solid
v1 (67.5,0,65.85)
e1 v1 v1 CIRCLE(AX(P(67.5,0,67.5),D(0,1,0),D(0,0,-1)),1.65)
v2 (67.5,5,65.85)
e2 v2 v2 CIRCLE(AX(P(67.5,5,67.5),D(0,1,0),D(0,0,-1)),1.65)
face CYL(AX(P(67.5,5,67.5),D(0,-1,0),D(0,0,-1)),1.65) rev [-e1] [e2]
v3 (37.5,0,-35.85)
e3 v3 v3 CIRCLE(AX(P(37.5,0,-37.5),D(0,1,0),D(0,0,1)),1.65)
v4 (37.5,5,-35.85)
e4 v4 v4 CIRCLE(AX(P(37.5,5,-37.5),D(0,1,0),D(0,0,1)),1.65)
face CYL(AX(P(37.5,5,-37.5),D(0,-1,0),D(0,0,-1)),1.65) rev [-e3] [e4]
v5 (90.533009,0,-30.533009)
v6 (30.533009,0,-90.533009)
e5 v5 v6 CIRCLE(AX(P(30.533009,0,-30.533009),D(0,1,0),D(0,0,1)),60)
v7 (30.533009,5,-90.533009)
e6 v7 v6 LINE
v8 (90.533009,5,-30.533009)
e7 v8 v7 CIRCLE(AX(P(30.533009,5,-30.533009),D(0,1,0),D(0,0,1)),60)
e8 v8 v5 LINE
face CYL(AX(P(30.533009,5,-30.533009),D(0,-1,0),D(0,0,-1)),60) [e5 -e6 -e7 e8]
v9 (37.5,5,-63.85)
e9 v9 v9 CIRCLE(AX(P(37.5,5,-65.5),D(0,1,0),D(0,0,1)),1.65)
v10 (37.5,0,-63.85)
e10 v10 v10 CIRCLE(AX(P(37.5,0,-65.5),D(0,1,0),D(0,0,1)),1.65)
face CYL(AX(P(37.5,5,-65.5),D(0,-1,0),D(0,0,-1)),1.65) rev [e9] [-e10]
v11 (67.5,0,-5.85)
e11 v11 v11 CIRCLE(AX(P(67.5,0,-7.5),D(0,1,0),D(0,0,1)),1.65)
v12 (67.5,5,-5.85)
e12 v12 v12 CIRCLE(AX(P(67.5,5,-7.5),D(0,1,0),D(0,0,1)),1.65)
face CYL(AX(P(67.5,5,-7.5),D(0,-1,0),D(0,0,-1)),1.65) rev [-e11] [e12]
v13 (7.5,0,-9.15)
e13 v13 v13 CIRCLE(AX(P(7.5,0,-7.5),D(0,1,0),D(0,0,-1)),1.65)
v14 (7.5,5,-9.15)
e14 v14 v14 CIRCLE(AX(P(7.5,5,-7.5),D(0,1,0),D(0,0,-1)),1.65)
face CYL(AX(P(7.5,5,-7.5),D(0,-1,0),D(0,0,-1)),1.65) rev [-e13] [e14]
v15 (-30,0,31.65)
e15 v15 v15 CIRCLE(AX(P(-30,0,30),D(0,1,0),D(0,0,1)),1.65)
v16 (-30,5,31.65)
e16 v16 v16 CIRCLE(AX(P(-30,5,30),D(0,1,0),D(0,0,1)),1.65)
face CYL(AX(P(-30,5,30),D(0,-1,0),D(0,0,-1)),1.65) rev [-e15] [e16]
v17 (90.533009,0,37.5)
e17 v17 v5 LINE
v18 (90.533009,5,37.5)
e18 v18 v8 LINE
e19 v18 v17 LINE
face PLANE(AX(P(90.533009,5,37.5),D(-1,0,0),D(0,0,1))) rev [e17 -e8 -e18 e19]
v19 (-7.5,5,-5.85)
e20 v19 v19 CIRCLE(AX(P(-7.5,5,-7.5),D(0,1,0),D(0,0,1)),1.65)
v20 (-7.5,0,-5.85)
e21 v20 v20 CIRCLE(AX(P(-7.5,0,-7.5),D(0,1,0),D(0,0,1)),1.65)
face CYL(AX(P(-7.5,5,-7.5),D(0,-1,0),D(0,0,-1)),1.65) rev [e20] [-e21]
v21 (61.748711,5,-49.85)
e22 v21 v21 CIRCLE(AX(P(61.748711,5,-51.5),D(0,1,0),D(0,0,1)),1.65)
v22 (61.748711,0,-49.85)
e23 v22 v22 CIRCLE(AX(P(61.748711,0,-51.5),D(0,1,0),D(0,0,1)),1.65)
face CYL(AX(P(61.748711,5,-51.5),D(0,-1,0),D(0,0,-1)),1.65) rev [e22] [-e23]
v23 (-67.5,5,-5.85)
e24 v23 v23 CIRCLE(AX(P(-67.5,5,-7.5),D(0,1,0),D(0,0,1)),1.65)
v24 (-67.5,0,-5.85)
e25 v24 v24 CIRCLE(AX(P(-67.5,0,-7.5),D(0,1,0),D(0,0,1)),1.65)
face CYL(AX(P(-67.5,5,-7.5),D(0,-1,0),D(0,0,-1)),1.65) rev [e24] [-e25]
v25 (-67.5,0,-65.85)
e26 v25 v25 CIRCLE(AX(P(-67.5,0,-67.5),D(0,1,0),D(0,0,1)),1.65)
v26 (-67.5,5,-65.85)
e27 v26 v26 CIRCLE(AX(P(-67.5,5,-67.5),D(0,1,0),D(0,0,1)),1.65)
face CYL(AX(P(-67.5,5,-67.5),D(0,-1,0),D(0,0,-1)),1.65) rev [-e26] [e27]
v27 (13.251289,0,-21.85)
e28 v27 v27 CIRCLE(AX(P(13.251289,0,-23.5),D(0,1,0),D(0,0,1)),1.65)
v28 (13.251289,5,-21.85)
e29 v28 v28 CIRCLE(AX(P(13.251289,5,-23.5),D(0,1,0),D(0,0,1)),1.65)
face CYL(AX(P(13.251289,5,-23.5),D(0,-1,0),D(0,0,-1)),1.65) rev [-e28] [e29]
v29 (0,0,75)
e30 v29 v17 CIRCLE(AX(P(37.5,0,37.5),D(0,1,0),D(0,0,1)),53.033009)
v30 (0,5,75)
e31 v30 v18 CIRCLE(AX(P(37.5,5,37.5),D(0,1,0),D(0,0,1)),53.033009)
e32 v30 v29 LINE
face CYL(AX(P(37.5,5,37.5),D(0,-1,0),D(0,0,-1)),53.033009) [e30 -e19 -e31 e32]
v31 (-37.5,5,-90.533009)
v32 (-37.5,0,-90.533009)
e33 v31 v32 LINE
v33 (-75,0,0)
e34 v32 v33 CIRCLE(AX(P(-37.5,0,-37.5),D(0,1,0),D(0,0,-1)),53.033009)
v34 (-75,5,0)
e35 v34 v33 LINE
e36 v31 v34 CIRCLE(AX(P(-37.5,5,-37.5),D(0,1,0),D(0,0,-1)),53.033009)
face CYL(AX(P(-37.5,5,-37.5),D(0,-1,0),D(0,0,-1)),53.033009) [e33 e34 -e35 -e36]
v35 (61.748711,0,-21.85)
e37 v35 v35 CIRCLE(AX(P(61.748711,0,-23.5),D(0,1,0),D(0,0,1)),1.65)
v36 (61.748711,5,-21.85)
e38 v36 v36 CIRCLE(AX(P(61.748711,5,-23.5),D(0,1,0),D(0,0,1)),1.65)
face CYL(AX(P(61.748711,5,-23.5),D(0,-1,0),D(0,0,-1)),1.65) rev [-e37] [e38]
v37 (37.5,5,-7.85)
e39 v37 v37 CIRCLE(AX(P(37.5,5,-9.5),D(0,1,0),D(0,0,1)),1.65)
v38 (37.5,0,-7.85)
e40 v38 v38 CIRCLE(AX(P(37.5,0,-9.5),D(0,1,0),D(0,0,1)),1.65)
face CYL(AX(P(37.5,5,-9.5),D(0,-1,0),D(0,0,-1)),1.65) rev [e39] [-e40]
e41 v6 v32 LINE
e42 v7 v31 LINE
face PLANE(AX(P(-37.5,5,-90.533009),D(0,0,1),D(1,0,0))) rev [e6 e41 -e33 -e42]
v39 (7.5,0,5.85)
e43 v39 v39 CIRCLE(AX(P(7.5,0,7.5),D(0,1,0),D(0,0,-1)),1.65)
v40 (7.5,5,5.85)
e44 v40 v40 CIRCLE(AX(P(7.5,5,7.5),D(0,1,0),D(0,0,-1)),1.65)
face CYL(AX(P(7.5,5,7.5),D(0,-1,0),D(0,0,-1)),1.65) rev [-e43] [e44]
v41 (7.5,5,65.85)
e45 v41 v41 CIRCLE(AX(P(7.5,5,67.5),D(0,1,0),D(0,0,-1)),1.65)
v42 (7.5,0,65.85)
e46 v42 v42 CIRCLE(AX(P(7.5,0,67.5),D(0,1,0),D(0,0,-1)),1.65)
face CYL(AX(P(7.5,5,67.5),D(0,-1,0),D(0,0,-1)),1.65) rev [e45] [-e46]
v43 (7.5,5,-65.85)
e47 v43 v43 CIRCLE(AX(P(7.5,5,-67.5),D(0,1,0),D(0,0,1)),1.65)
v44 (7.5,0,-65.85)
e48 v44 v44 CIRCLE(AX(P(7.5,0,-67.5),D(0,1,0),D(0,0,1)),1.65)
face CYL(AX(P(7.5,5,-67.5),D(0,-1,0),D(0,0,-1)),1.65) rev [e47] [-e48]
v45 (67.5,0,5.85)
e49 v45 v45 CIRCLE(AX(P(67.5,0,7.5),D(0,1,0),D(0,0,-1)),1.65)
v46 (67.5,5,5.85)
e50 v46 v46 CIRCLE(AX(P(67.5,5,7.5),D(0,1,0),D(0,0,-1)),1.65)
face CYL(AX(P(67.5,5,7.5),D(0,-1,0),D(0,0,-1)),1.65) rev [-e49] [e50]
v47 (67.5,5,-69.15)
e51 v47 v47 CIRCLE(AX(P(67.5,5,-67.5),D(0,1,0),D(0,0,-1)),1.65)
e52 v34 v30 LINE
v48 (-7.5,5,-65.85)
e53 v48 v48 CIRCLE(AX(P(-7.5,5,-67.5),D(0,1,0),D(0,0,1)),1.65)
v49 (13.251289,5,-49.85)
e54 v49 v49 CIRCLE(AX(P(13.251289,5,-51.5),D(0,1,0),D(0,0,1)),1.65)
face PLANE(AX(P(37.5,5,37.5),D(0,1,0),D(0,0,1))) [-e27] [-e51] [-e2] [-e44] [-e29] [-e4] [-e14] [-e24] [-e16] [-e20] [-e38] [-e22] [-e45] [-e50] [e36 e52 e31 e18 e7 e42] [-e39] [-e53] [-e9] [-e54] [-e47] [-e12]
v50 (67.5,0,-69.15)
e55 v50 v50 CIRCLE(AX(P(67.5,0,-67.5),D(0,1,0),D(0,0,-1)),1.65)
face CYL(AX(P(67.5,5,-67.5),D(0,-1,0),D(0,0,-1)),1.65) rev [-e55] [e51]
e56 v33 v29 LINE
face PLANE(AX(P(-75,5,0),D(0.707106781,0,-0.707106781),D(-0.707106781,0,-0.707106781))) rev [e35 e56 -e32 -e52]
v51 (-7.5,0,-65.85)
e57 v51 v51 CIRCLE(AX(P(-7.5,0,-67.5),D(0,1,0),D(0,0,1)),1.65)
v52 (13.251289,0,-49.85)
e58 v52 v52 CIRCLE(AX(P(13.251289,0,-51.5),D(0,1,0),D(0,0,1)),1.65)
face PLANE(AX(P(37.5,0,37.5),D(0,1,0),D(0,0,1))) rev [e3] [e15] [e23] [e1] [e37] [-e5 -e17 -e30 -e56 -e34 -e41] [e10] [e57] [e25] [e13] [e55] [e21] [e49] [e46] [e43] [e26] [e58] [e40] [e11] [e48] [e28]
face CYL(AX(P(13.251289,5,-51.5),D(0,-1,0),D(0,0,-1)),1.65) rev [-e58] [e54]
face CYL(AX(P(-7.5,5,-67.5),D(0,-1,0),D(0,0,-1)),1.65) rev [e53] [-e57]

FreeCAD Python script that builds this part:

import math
import FreeCAD as App
import Part
import Sketcher

V = App.Vector

doc = App.newDocument("Part")
body = doc.addObject("PartDesign::Body", "Body")

# Sketch on XZ plane
sketch1 = doc.addObject("Sketcher::SketchObject", "Sketch")
body.addObject(sketch1)
sketch1.AttachmentSupport = (doc.XZ_Plane, [""])
sketch1.MapMode = "FlatFace"
sketch1.addGeometry([
    Part.LineSegment(V(-75, 0, 0), V(0, 75, 0)),  # 0
    Part.ArcOfCircle(Part.Circle(V(37.5, 37.5, 0), V(0, 0, 1), 53), math.radians(45), math.radians(135)),  # 1
    Part.ArcOfCircle(Part.Circle(V(37.5, 37.5, 0), V(0, 0, 1), 53), math.radians(0), math.radians(45)),  # 2
    Part.LineSegment(V(90.5, 37.5, 0), V(90.5, -30.5, 0)),  # 3
    Part.ArcOfCircle(Part.Circle(V(30.5, -30.5, 0), V(0, 0, 1), 60), math.radians(-90), math.radians(0)),  # 4
    Part.LineSegment(V(30.5, -90.5, 0), V(-37.5, -90.5, 0)),  # 5
    Part.ArcOfCircle(Part.Circle(V(-37.5, -37.5, 0), V(0, 0, 1), 53), math.radians(-135), math.radians(-90)),  # 6
    Part.ArcOfCircle(Part.Circle(V(-37.5, -37.5, 0), V(0, 0, 1), 53), math.radians(135), math.radians(225)),  # 7
    Part.Circle(V(-30, 30, 0), V(0, 0, 1), 1.6),  # 8
    Part.Circle(V(7.5, 67.5, 0), V(0, 0, 1), 1.6),  # 9
    Part.Circle(V(67.5, 67.5, 0), V(0, 0, 1), 1.6),  # 10
    Part.Circle(V(7.5, 7.5, 0), V(0, 0, 1), 1.6),  # 11
    Part.Circle(V(67.5, 7.5, 0), V(0, 0, 1), 1.6),  # 12
    Part.Circle(V(-67.5, -7.5, 0), V(0, 0, 1), 1.6),  # 13
    Part.Circle(V(-7.5, -7.5, 0), V(0, 0, 1), 1.6),  # 14
    Part.Circle(V(-67.5, -67.5, 0), V(0, 0, 1), 1.6),  # 15
    Part.Circle(V(-7.5, -67.5, 0), V(0, 0, 1), 1.6),  # 16
    Part.Circle(V(7.5, -7.5, 0), V(0, 0, 1), 1.6),  # 17
    Part.Circle(V(13.3, -23.5, 0), V(0, 0, 1), 1.6),  # 18
    Part.Circle(V(37.5, -9.5, 0), V(0, 0, 1), 1.6),  # 19
    Part.Circle(V(67.5, -7.5, 0), V(0, 0, 1), 1.6),  # 20
    Part.Circle(V(61.7, -23.5, 0), V(0, 0, 1), 1.6),  # 21
    Part.Circle(V(13.3, -51.5, 0), V(0, 0, 1), 1.6),  # 22
    Part.Circle(V(7.5, -67.5, 0), V(0, 0, 1), 1.6),  # 23
    Part.Circle(V(37.5, -37.5, 0), V(0, 0, 1), 1.6),  # 24
    Part.Circle(V(61.7, -51.5, 0), V(0, 0, 1), 1.6),  # 25
    Part.Circle(V(37.5, -65.5, 0), V(0, 0, 1), 1.6),  # 26
    Part.Circle(V(67.5, -67.5, 0), V(0, 0, 1), 1.6),  # 27
], False)
sketch1.addConstraint([
    Sketcher.Constraint("Tangent", 0, 2, 1, 2),
    Sketcher.Constraint("Tangent", 1, 1, 2, 2),
    Sketcher.Constraint("Tangent", 2, 1, 3, 1),
    Sketcher.Constraint("Tangent", 3, 2, 4, 2),
    Sketcher.Constraint("Tangent", 4, 1, 5, 1),
    Sketcher.Constraint("Tangent", 5, 2, 6, 2),
    Sketcher.Constraint("Tangent", 6, 1, 7, 2),
    Sketcher.Constraint("Tangent", 7, 1, 0, 1),
    Sketcher.Constraint("Vertical", 3),
    Sketcher.Constraint("Horizontal", 5),
    Sketcher.Constraint("Equal", 1, 2),
    Sketcher.Constraint("Equal", 2, 6),
    Sketcher.Constraint("Equal", 6, 7),
    Sketcher.Constraint("Equal", 8, 9),
    Sketcher.Constraint("Equal", 9, 10),
    Sketcher.Constraint("Equal", 10, 11),
    Sketcher.Constraint("Equal", 11, 12),
    Sketcher.Constraint("Equal", 12, 13),
    Sketcher.Constraint("Equal", 13, 14),
    Sketcher.Constraint("Equal", 14, 15),
    Sketcher.Constraint("Equal", 15, 16),
    Sketcher.Constraint("Equal", 16, 17),
    Sketcher.Constraint("Equal", 17, 18),
    Sketcher.Constraint("Equal", 18, 19),
    Sketcher.Constraint("Equal", 19, 20),
    Sketcher.Constraint("Equal", 20, 21),
    Sketcher.Constraint("Equal", 21, 22),
    Sketcher.Constraint("Equal", 22, 23),
    Sketcher.Constraint("Equal", 23, 24),
    Sketcher.Constraint("Equal", 24, 25),
    Sketcher.Constraint("Equal", 25, 26),
    Sketcher.Constraint("Equal", 26, 27),
    Sketcher.Constraint("Symmetric", 1, 3, 6, 3, -1, 1),
    Sketcher.Constraint("Symmetric", 12, 3, 13, 3, -1, 1),
    Sketcher.Constraint("Symmetric", 11, 3, 14, 3, -1, 1),
    Sketcher.Constraint("Symmetric", 10, 3, 15, 3, -1, 1),
    Sketcher.Constraint("Symmetric", 9, 3, 16, 3, -1, 1),
    Sketcher.Constraint("Symmetric", 14, 3, 17, 3, -2),
    Sketcher.Constraint("Symmetric", 13, 3, 20, 3, -2),
    Sketcher.Constraint("Symmetric", 16, 3, 23, 3, -2),
    Sketcher.Constraint("Symmetric", 6, 3, 24, 3, -2),
    Sketcher.Constraint("Symmetric", 15, 3, 27, 3, -2),
    Sketcher.Constraint("PointOnObject", 0, 2, -2),
    Sketcher.Constraint("PointOnObject", 7, 1, -1),
    Sketcher.Constraint("Horizontal", 9, 3, 10, 3),
    Sketcher.Constraint("Horizontal", 11, 3, 12, 3),
    Sketcher.Constraint("Horizontal", 18, 3, 21, 3),
    Sketcher.Constraint("Horizontal", 22, 3, 25, 3),
    Sketcher.Constraint("Horizontal", 0, 2, 1, 1),
    Sketcher.Constraint("Vertical", 9, 3, 11, 3),
    Sketcher.Constraint("Vertical", 10, 3, 12, 3),
    Sketcher.Constraint("Vertical", 2, 3, 19, 3),
    Sketcher.Constraint("Vertical", 18, 3, 22, 3),
    Sketcher.Constraint("Vertical", 21, 3, 25, 3),
    Sketcher.Constraint("Vertical", 24, 3, 26, 3),
    Sketcher.Constraint("Vertical", 6, 1, 7, 1),
    Sketcher.Constraint("Radius", 4, 60.0),
    Sketcher.Constraint("Diameter", 8, 3.3),
    Sketcher.Constraint("DistanceX", 8, 3, -1, 1, 30.0),
    Sketcher.Constraint("DistanceY", -1, 1, 8, 3, 30.0),
    Sketcher.Constraint("DistanceY", -1, 1, 0, 2, 75.0),
    Sketcher.Constraint("DistanceX", 9, 3, 2, 3, 30.0),
    Sketcher.Constraint("DistanceY", 2, 3, 9, 3, 30.0),
    Sketcher.Constraint("DistanceX", 1, 3, 10, 3, 30.0),
    Sketcher.Constraint("DistanceY", 11, 3, 2, 3, 30.0),
    Sketcher.Constraint("DistanceY", 18, 3, 17, 3, 16.0),
    Sketcher.Constraint("DistanceY", 18, 3, 19, 3, 14.0),
    Sketcher.Constraint("DistanceY", 16, 3, 22, 3, 16.0),
    Sketcher.Constraint("DistanceY", 26, 3, 24, 3, 28.0),
    Sketcher.Constraint("DistanceX", -1, 1, 18, 3, 13.251289),
    Sketcher.Constraint("DistanceX", -1, 1, 21, 3, 61.748711),
])
pad1 = doc.addObject("PartDesign::Pad", "Pad")
body.addObject(pad1)
pad1.Profile = sketch1
pad1.Length = 5
pad1.Reversed = True

doc.recompute()
